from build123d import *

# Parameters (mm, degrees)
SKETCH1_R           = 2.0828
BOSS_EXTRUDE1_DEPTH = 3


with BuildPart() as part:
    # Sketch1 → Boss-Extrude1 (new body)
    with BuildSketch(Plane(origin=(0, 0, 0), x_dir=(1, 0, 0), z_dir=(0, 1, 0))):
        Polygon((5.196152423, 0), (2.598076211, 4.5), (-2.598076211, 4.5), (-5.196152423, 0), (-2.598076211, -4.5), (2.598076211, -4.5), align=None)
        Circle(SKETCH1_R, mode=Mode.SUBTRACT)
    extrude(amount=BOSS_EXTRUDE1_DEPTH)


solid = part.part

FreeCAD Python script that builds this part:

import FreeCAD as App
import Part
import Sketcher
Q = App.Units.Quantity

doc = App.newDocument("Part")
body = doc.addObject("PartDesign::Body", "Body")

# Sketch on XZ plane
sketch1 = doc.addObject("Sketcher::SketchObject", "Sketch")
body.addObject(sketch1)
sketch1.AttachmentSupport = (doc.XZ_Plane, [""])
sketch1.MapMode = "FlatFace"
sketch1.addGeometry(Part.LineSegment(App.Vector(5.196152, 0, 0), App.Vector(2.598076, -4.5, 0)), False)
sketch1.addGeometry(Part.LineSegment(App.Vector(2.598076, -4.5, 0), App.Vector(-2.598076, -4.5, 0)), False)
sketch1.addGeometry(Part.LineSegment(App.Vector(-2.598076, -4.5, 0), App.Vector(-5.196152, 0, 0)), False)
sketch1.addGeometry(Part.LineSegment(App.Vector(-5.196152, 0, 0), App.Vector(-2.598076, 4.5, 0)), False)
sketch1.addGeometry(Part.LineSegment(App.Vector(-2.598076, 4.5, 0), App.Vector(2.598076, 4.5, 0)), False)
sketch1.addGeometry(Part.LineSegment(App.Vector(2.598076, 4.5, 0), App.Vector(5.196152, 0, 0)), False)
sketch1.addGeometry(Part.Circle(App.Vector(0, 0, 0), App.Vector(0, 0, 1), 2.0828), False)
sketch1.addConstraint(Sketcher.Constraint("Coincident", 0, 2, 1, 1))
sketch1.addConstraint(Sketcher.Constraint("Coincident", 1, 2, 2, 1))
sketch1.addConstraint(Sketcher.Constraint("Coincident", 2, 2, 3, 1))
sketch1.addConstraint(Sketcher.Constraint("Coincident", 3, 2, 4, 1))
sketch1.addConstraint(Sketcher.Constraint("Coincident", 4, 2, 5, 1))
sketch1.addConstraint(Sketcher.Constraint("Coincident", 5, 2, 0, 1))
sketch1.addConstraint(Sketcher.Constraint("Horizontal", 1))
sketch1.addConstraint(Sketcher.Constraint("Horizontal", 4))
sketch1.addConstraint(Sketcher.Constraint("Coincident", 6, 3, -1, 1))
sketch1.addConstraint(Sketcher.Constraint("Symmetric", 0, 2, 3, 2, -1, 1))
sketch1.addConstraint(Sketcher.Constraint("Symmetric", 2, 2, 5, 2, -1, 1))
sketch1.addConstraint(Sketcher.Constraint("PointOnObject", 2, 2, -1))
sketch1.addConstraint(Sketcher.Constraint("Parallel", 2, 5))
sketch1.addConstraint(Sketcher.Constraint("Vertical", 1, 2, 3, 2))
sketch1.addConstraint(Sketcher.Constraint("Angle", 0, Q("-120 deg")))
sketch1.addConstraint(Sketcher.Constraint("DistanceY", 1, 2, 3, 2, 9.0))
sketch1.addConstraint(Sketcher.Constraint("Diameter", 6, 4.1656))
sketch1.addConstraint(Sketcher.Constraint("DistanceX", 1, 2, 1, 1, 5.196152))
pad1 = doc.addObject("PartDesign::Pad", "Pad")
body.addObject(pad1)
pad1.Profile = sketch1
pad1.Length = 3
pad1.Reversed = True

doc.recompute()
